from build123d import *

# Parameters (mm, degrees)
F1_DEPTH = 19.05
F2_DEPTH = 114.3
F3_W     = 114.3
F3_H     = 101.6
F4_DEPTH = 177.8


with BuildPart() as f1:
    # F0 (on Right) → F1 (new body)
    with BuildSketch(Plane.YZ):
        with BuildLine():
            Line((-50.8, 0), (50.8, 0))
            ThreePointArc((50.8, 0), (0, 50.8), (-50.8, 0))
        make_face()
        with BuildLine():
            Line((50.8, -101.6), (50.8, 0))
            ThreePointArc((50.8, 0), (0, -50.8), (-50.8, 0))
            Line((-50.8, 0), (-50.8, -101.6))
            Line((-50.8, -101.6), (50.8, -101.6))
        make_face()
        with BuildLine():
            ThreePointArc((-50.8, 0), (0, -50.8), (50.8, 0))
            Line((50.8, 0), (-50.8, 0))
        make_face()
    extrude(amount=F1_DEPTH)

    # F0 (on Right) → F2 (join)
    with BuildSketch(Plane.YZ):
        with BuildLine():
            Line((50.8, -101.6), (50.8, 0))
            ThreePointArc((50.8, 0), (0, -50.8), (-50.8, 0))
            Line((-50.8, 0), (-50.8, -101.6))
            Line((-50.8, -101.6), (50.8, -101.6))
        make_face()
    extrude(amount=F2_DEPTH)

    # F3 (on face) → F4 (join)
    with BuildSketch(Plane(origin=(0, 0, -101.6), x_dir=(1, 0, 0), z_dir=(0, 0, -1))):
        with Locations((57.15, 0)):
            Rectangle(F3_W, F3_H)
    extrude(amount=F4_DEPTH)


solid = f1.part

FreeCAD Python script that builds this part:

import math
import FreeCAD as App
import Part
import Sketcher

V = App.Vector
Q = App.Units.Quantity

doc = App.newDocument("Part")
body = doc.addObject("PartDesign::Body", "Body")

# Sketch on YZ plane
sketch1 = doc.addObject("Sketcher::SketchObject", "Sketch")
body.addObject(sketch1)
sketch1.AttachmentSupport = (doc.YZ_Plane, [""])
sketch1.MapMode = "FlatFace"
sketch1.addGeometry(Part.ArcOfCircle(Part.Circle(V(0, 0, 0), V(0, 0, 1), 50.8), math.radians(0), math.radians(180)), False)
sketch1.addGeometry(Part.LineSegment(V(-50.8, 0, 0), V(-50.8, -101.6, 0)), False)
sketch1.addGeometry(Part.LineSegment(V(-50.8, -101.6, 0), V(50.8, -101.6, 0)), False)
sketch1.addGeometry(Part.LineSegment(V(50.8, -101.6, 0), V(50.8, 0, 0)), False)
sketch1.addConstraint(Sketcher.Constraint("Tangent", 0, 2, 1, 1))
sketch1.addConstraint(Sketcher.Constraint("Coincident", 1, 2, 2, 1))
sketch1.addConstraint(Sketcher.Constraint("Coincident", 2, 2, 3, 1))
sketch1.addConstraint(Sketcher.Constraint("Tangent", 3, 2, 0, 1))
sketch1.addConstraint(Sketcher.Constraint("Vertical", 1))
sketch1.addConstraint(Sketcher.Constraint("Horizontal", 2))
sketch1.addConstraint(Sketcher.Constraint("Vertical", 3))
sketch1.addConstraint(Sketcher.Constraint("Coincident", 0, 3, -1, 1))
sketch1.addConstraint(Sketcher.Constraint("Equal", 2, 1))
sketch1.addConstraint(Sketcher.Constraint("Radius", 0, Q("2 in")))
pad1 = doc.addObject("PartDesign::Pad", "Pad")
body.addObject(pad1)
pad1.Profile = sketch1
pad1.Length = Q("0.75 in")

# Sketch on YZ plane
sketch2 = doc.addObject("Sketcher::SketchObject", "Sketch001")
body.addObject(sketch2)
sketch2.AttachmentSupport = (doc.YZ_Plane, [""])
sketch2.MapMode = "FlatFace"
sketch2.addGeometry(Part.LineSegment(V(50.8, -101.6, 0), V(50.8, 0, 0)), False)
sketch2.addGeometry(Part.ArcOfCircle(Part.Circle(V(0, 0, 0), V(0, 0, 1), 50.8), math.radians(180), math.radians(360)), False)
sketch2.addGeometry(Part.LineSegment(V(-50.8, 0, 0), V(-50.8, -101.6, 0)), False)
sketch2.addGeometry(Part.LineSegment(V(-50.8, -101.6, 0), V(50.8, -101.6, 0)), False)
sketch2.addConstraint(Sketcher.Constraint("Tangent", 0, 2, 1, 2))
sketch2.addConstraint(Sketcher.Constraint("Tangent", 1, 1, 2, 1))
sketch2.addConstraint(Sketcher.Constraint("Coincident", 2, 2, 3, 1))
sketch2.addConstraint(Sketcher.Constraint("Coincident", 3, 2, 0, 1))
sketch2.addConstraint(Sketcher.Constraint("Vertical", 0))
sketch2.addConstraint(Sketcher.Constraint("Vertical", 2))
sketch2.addConstraint(Sketcher.Constraint("Horizontal", 3))
sketch2.addConstraint(Sketcher.Constraint("Coincident", 1, 3, -1, 1))
sketch2.addConstraint(Sketcher.Constraint("Equal", 3, 0))
sketch2.addConstraint(Sketcher.Constraint("Radius", 1, Q("2 in")))
pad2 = doc.addObject("PartDesign::Pad", "Pad001")
body.addObject(pad2)
pad2.Profile = sketch2
pad2.Length = Q("4.5 in")

# Sketch on XY plane
sketch3 = doc.addObject("Sketcher::SketchObject", "Sketch002")
body.addObject(sketch3)
sketch3.AttachmentSupport = (doc.XY_Plane, [""])
sketch3.MapMode = "FlatFace"
sketch3.AttachmentOffset = App.Placement(V(0, 0, -4 * 25.4), App.Rotation())
sketch3.addGeometry(Part.LineSegment(V(0, -50.8, 0), V(0, 50.8, 0)), False)
sketch3.addGeometry(Part.LineSegment(V(0, 50.8, 0), V(114.3, 50.8, 0)), False)
sketch3.addGeometry(Part.LineSegment(V(114.3, 50.8, 0), V(114.3, -50.8, 0)), False)
sketch3.addGeometry(Part.LineSegment(V(114.3, -50.8, 0), V(0, -50.8, 0)), False)
sketch3.addConstraint(Sketcher.Constraint("Coincident", 0, 2, 1, 1))
sketch3.addConstraint(Sketcher.Constraint("Coincident", 1, 2, 2, 1))
sketch3.addConstraint(Sketcher.Constraint("Coincident", 2, 2, 3, 1))
sketch3.addConstraint(Sketcher.Constraint("Coincident", 3, 2, 0, 1))
sketch3.addConstraint(Sketcher.Constraint("Vertical", 0))
sketch3.addConstraint(Sketcher.Constraint("Horizontal", 1))
sketch3.addConstraint(Sketcher.Constraint("Vertical", 2))
sketch3.addConstraint(Sketcher.Constraint("Horizontal", 3))
sketch3.addConstraint(Sketcher.Constraint("Symmetric", 0, 2, 3, 2, -1, 1))
sketch3.addConstraint(Sketcher.Constraint("DistanceY", 0, 1, 0, 2, Q("4 in")))
sketch3.addConstraint(Sketcher.Constraint("DistanceX", 1, 1, 1, 2, Q("4.5 in")))
pad3 = doc.addObject("PartDesign::Pad", "Pad002")
body.addObject(pad3)
pad3.Profile = sketch3
pad3.Length = Q("7 in")
pad3.Reversed = True

doc.recompute()
